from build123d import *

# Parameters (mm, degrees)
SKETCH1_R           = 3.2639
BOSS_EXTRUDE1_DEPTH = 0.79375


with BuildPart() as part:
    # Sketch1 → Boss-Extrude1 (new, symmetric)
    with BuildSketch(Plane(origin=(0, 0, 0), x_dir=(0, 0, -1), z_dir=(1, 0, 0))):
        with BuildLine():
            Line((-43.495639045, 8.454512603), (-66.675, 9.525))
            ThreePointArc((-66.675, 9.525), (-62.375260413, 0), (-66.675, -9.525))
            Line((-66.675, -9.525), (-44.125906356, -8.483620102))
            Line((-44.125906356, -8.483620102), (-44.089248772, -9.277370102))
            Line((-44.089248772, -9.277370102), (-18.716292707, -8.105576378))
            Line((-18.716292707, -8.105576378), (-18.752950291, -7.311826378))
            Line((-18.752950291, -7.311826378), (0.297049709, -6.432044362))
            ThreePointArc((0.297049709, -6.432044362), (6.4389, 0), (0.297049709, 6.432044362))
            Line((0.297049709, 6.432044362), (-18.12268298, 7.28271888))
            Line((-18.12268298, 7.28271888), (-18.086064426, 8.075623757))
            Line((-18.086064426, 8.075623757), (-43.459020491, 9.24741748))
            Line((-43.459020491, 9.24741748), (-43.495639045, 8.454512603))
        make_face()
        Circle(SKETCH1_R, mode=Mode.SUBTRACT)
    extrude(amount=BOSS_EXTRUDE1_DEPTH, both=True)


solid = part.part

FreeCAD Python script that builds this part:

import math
import FreeCAD as App
import Part
import Sketcher
from FreeCAD import Vector
Q = App.Units.Quantity

doc = App.newDocument("Part")
body = doc.addObject("PartDesign::Body", "Body")

# Sketch on YZ plane
sketch1 = body.newObject("Sketcher::SketchObject", "Sketch")
sketch1.AttachmentSupport = (doc.getObject("YZ_Plane"), [""])
sketch1.MapMode = "FlatFace"
sketch1.addGeometry([
    Part.LineSegment(Vector(8.5, 43.5, 0), Vector(9.5, 66.7, 0)),  # 0
    Part.ArcOfCircle(Part.Circle(Vector(0, 75.1, 0), Vector(0, 0, 1), 12.7), math.radians(-139), math.radians(-41)),  # 1
    Part.LineSegment(Vector(-9.5, 66.7, 0), Vector(-8.5, 44.1, 0)),  # 2
    Part.LineSegment(Vector(-8.5, 44.1, 0), Vector(-9.3, 44.1, 0)),  # 3
    Part.LineSegment(Vector(-9.3, 44.1, 0), Vector(-8.1, 18.7, 0)),  # 4
    Part.LineSegment(Vector(-8.1, 18.7, 0), Vector(-7.3, 18.8, 0)),  # 5
    Part.LineSegment(Vector(-7.3, 18.8, 0), Vector(-6.4, -0.3, 0)),  # 6
    Part.ArcOfCircle(Part.Circle(Vector(0, 0, 0), Vector(0, 0, 1), 6.4), math.radians(-177), math.radians(-3)),  # 7
    Part.LineSegment(Vector(6.4, -0.3, 0), Vector(7.3, 18.1, 0)),  # 8
    Part.LineSegment(Vector(7.3, 18.1, 0), Vector(8.1, 18.1, 0)),  # 9
    Part.LineSegment(Vector(8.1, 18.1, 0), Vector(9.2, 43.5, 0)),  # 10
    Part.LineSegment(Vector(9.2, 43.5, 0), Vector(8.5, 43.5, 0)),  # 11
    Part.Circle(Vector(0, 0, 0), Vector(0, 0, 1), 3.3),  # 12
], False)
sketch1.addConstraint([
    Sketcher.Constraint("Coincident", 0, 2, 1, 2),
    Sketcher.Constraint("Coincident", 1, 1, 2, 1),
    Sketcher.Constraint("Coincident", 2, 2, 3, 1),
    Sketcher.Constraint("Coincident", 3, 2, 4, 1),
    Sketcher.Constraint("Coincident", 4, 2, 5, 1),
    Sketcher.Constraint("Coincident", 5, 2, 6, 1),
    Sketcher.Constraint("Tangent", 6, 2, 7, 1),
    Sketcher.Constraint("Tangent", 7, 2, 8, 1),
    Sketcher.Constraint("Coincident", 8, 2, 9, 1),
    Sketcher.Constraint("Coincident", 9, 2, 10, 1),
    Sketcher.Constraint("Coincident", 10, 2, 11, 1),
    Sketcher.Constraint("Coincident", 11, 2, 0, 1),
    Sketcher.Constraint("Coincident", 7, 3, -1, 1),
    Sketcher.Constraint("Coincident", 12, 3, -1, 1),
    Sketcher.Constraint("Symmetric", 0, 2, 1, 1, -2),
    Sketcher.Constraint("Perpendicular", 2, 3),
    Sketcher.Constraint("Perpendicular", 3, 4),
    Sketcher.Constraint("Perpendicular", 4, 5),
    Sketcher.Constraint("Perpendicular", 5, 6),
    Sketcher.Constraint("Parallel", 0, 8),
    Sketcher.Constraint("Perpendicular", 8, 9),
    Sketcher.Constraint("Perpendicular", 9, 10),
    Sketcher.Constraint("Perpendicular", 10, 11),
    Sketcher.Constraint("Horizontal", 6, 2, 7, 2),
    Sketcher.Constraint("Equal", 3, 5),
    Sketcher.Constraint("Equal", 4, 10),
    Sketcher.Constraint("Radius", 1, Q("0.5 in")),
    Sketcher.Constraint("Distance", 4, Q("1 in")),
    Sketcher.Constraint("Diameter", 12, Q("0.257 in")),
    Sketcher.Constraint("Radius", 7, Q("0.2535 in")),
    Sketcher.Constraint("DistanceX", 1, 1, 0, 2, Q("0.75 in")),
    Sketcher.Constraint("DistanceY", 6, 2, 5, 2, Q("0.75 in")),
    Sketcher.Constraint("Distance", 9, Q("0.03125 in")),
    Sketcher.Constraint("DistanceY", -1, 1, 0, 2, Q("2.625 in")),
    Sketcher.Constraint("DistanceX", 3, 2, 2, 2, Q("0.03125 in")),
    Sketcher.Constraint("DistanceX", 4, 2, 9, 2, Q("16.1812 mm")),
])
pad1 = body.newObject("PartDesign::Pad", "Pad")
pad1.Profile = sketch1
pad1.Length = Q("0.0625 in")
pad1.Midplane = True

doc.recompute()
